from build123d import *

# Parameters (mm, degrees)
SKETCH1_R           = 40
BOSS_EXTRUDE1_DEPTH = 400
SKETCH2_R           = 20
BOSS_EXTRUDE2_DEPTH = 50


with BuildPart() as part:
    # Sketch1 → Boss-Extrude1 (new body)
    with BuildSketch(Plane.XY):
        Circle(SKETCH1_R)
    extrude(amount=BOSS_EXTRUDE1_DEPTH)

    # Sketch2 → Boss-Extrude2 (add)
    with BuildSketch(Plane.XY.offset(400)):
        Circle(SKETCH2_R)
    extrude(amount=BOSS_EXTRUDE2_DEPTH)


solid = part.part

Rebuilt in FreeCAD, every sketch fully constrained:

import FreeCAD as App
import Part
import Sketcher

V = App.Vector
Q = App.Units.Quantity

doc = App.newDocument("Part")
body = doc.addObject("PartDesign::Body", "Body")

# Sketch on XY plane
sketch1 = body.newObject("Sketcher::SketchObject", "Sketch")
sketch1.AttachmentSupport = (doc.getObject("XY_Plane"), [""])
sketch1.MapMode = "FlatFace"
sketch1.addGeometry(Part.Circle(V(0, 0, 0), V(0, 0, 1), 40), False)
sketch1.addConstraint(Sketcher.Constraint("Coincident", 0, 3, -1, 1))
sketch1.addConstraint(Sketcher.Constraint("Diameter", 0, Q("80 mm")))
pad1 = body.newObject("PartDesign::Pad", "Pad")
pad1.Profile = sketch1
pad1.Length = 400

# Sketch on XY plane
sketch2 = body.newObject("Sketcher::SketchObject", "Sketch001")
sketch2.AttachmentSupport = (doc.getObject("XY_Plane"), [""])
sketch2.MapMode = "FlatFace"
sketch2.AttachmentOffset = App.Placement(V(0, 0, 400), App.Rotation())
sketch2.addGeometry(Part.Circle(V(0, 0, 0), V(0, 0, 1), 20), False)
sketch2.addConstraint(Sketcher.Constraint("Coincident", 0, 3, -1, 1))
sketch2.addConstraint(Sketcher.Constraint("Diameter", 0, Q("40 mm")))
pad2 = body.newObject("PartDesign::Pad", "Pad001")
pad2.Profile = sketch2
pad2.Length = 50

doc.recompute()
